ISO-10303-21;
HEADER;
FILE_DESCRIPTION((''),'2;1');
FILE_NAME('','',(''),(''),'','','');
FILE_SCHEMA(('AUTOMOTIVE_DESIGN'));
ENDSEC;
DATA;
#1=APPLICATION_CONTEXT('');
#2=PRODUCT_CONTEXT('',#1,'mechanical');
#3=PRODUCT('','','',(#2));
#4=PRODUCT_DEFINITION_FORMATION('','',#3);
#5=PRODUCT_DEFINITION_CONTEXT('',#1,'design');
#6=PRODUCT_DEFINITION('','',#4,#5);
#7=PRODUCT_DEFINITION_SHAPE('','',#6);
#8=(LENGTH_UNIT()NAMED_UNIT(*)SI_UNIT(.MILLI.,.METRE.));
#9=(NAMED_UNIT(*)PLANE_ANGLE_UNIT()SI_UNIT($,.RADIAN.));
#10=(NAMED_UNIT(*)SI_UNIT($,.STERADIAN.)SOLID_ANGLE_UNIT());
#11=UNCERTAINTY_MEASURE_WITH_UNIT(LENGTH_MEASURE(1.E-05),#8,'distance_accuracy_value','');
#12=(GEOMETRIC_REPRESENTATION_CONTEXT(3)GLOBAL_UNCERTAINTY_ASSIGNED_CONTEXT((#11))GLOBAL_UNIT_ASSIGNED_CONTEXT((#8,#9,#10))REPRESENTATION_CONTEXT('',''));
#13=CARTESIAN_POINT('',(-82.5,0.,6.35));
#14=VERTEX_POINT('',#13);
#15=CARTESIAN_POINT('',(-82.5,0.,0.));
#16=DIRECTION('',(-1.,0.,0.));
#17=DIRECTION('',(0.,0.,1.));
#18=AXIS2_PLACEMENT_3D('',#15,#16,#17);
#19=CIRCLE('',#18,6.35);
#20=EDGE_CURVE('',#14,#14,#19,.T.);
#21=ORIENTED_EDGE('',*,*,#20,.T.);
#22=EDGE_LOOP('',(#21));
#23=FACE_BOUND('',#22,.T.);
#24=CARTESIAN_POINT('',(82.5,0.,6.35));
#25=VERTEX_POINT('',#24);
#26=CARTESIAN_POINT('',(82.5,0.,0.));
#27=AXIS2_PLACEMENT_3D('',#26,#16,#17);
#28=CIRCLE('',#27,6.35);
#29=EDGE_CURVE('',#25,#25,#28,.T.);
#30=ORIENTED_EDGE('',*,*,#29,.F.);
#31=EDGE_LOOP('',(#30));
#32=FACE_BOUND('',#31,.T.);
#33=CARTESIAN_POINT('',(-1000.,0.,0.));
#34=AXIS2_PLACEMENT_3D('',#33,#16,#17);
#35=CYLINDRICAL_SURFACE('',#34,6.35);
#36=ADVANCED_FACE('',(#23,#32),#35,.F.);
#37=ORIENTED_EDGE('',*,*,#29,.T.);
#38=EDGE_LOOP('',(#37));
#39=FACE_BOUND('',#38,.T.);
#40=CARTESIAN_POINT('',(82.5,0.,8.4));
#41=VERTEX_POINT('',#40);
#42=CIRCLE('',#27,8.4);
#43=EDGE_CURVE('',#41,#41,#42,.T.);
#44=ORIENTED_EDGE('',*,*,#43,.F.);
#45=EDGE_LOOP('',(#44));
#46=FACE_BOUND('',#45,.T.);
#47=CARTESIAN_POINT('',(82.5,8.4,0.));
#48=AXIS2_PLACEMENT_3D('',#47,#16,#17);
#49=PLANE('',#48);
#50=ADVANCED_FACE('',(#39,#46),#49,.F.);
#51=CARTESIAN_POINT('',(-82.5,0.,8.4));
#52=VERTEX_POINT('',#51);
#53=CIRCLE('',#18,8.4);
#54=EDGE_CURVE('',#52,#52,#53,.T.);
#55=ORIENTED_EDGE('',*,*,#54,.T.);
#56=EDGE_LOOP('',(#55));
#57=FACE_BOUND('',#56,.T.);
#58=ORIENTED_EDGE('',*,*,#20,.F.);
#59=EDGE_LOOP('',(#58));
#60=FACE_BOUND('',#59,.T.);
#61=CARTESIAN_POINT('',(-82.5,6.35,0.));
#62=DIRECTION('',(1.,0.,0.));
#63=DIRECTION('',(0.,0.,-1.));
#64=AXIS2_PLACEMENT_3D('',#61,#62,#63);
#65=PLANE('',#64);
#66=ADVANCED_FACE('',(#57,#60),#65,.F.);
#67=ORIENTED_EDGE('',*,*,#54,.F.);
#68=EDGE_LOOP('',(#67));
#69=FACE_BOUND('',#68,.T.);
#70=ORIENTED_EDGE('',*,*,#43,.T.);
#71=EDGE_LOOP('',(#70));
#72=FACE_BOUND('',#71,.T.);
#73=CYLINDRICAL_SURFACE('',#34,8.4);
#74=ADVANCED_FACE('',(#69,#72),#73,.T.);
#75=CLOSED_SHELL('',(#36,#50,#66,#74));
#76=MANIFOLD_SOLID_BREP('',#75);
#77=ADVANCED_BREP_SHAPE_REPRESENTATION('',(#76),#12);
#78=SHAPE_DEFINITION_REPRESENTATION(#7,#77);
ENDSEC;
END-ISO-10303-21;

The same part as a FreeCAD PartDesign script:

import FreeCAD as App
import Part
import Sketcher

doc = App.newDocument("Part")
body = doc.addObject("PartDesign::Body", "Body")

sketch1 = body.newObject("Sketcher::SketchObject", "Sketch")
sketch1.AttachmentSupport = (doc.getObject("XY_Plane"), [""])
sketch1.MapMode = "FlatFace"
sketch1.addGeometry(Part.LineSegment(App.Vector(-82.5, 8.4, 0), App.Vector(-82.5, 6.3, 0)), False)
sketch1.addGeometry(Part.LineSegment(App.Vector(-82.5, 6.3, 0), App.Vector(82.5, 6.3, 0)), False)
sketch1.addGeometry(Part.LineSegment(App.Vector(82.5, 6.3, 0), App.Vector(82.5, 8.4, 0)), False)
sketch1.addGeometry(Part.LineSegment(App.Vector(82.5, 8.4, 0), App.Vector(-82.5, 8.4, 0)), False)
sketch1.addConstraint(Sketcher.Constraint("Coincident", 0, 2, 1, 1))
sketch1.addConstraint(Sketcher.Constraint("Coincident", 1, 2, 2, 1))
sketch1.addConstraint(Sketcher.Constraint("Coincident", 2, 2, 3, 1))
sketch1.addConstraint(Sketcher.Constraint("Coincident", 3, 2, 0, 1))
sketch1.addConstraint(Sketcher.Constraint("Vertical", 0))
sketch1.addConstraint(Sketcher.Constraint("Horizontal", 1))
sketch1.addConstraint(Sketcher.Constraint("Vertical", 2))
sketch1.addConstraint(Sketcher.Constraint("Horizontal", 3))
sketch1.addConstraint(Sketcher.Constraint("DistanceX", 1, 1, 1, 2, 165.0))
sketch1.addConstraint(Sketcher.Constraint("DistanceY", 0, 2, 0, 1, 2.05))
sketch1.addConstraint(Sketcher.Constraint("DistanceX", 0, 2, -1, 1, 82.5))
sketch1.addConstraint(Sketcher.Constraint("DistanceY", -1, 1, 2, 2, 8.4))
revolution = body.newObject("PartDesign::Revolution", "Revolution")
revolution.Profile = sketch1
revolution.ReferenceAxis = (sketch1, ["H_Axis"])
revolution.Angle = 360

doc.recompute()
